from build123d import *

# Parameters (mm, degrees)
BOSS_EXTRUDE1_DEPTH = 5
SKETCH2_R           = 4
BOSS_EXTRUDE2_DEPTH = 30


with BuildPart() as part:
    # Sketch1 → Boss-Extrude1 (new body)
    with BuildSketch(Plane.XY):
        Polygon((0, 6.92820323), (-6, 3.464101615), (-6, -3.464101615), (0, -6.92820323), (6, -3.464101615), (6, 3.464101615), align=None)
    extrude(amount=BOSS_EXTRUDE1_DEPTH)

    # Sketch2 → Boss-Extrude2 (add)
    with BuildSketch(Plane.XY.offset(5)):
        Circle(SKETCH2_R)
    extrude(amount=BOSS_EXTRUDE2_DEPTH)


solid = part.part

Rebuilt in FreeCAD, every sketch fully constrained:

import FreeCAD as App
import Part
import Sketcher

V = App.Vector
Q = App.Units.Quantity


def add_polygon(sketch, points):
    """Adds a closed chain of lines whose ends are joined by coincident constraints."""
    first, n = sketch.GeometryCount, len(points)
    for a, b in zip(points, points[1:] + points[:1]):
        sketch.addGeometry(Part.LineSegment(App.Vector(*a, 0), App.Vector(*b, 0)), False)
    for i in range(n):
        sketch.addConstraint(Sketcher.Constraint("Coincident", first + i, 2, first + (i + 1) % n, 1))

doc = App.newDocument("Part")
body = doc.addObject("PartDesign::Body", "Body")

sketch1 = body.newObject("Sketcher::SketchObject", "Sketch")
sketch1.AttachmentSupport = (doc.getObject("XY_Plane"), [""])
sketch1.MapMode = "FlatFace"
add_polygon(sketch1, [(0, 7), (-6, 3), (-6, -3), (0, -7), (6, -3), (6, 3)])
sketch1.addConstraint([
    Sketcher.Constraint("Vertical", 1),
    Sketcher.Constraint("Vertical", 4),
    Sketcher.Constraint("Symmetric", 0, 2, 3, 2, -1, 1),
    Sketcher.Constraint("Symmetric", 2, 2, 5, 2, -1, 1),
    Sketcher.Constraint("PointOnObject", 2, 2, -2),
    Sketcher.Constraint("Parallel", 2, 5),
    Sketcher.Constraint("Horizontal", 1, 2, 3, 2),
    Sketcher.Constraint("Angle", 0, Q("-150 deg")),
    Sketcher.Constraint("DistanceX", 0, 2, -1, 1, 6.0),
    Sketcher.Constraint("DistanceY", -1, 1, 0, 2, 3.464102),
])
pad1 = body.newObject("PartDesign::Pad", "Pad")
pad1.Profile = sketch1
pad1.Length = 5

sketch2 = body.newObject("Sketcher::SketchObject", "Sketch001")
sketch2.AttachmentSupport = (doc.getObject("XY_Plane"), [""])
sketch2.MapMode = "FlatFace"
sketch2.AttachmentOffset = App.Placement(V(0, 0, 5), App.Rotation())
sketch2.addGeometry(Part.Circle(V(0, 0, 0), V(0, 0, 1), 4), False)
sketch2.addConstraint([
    Sketcher.Constraint("Coincident", 0, 3, -1, 1),
    Sketcher.Constraint("Diameter", 0, 8.0),
])
pad2 = body.newObject("PartDesign::Pad", "Pad001")
pad2.Profile = sketch2
pad2.Length = 30

doc.recompute()
